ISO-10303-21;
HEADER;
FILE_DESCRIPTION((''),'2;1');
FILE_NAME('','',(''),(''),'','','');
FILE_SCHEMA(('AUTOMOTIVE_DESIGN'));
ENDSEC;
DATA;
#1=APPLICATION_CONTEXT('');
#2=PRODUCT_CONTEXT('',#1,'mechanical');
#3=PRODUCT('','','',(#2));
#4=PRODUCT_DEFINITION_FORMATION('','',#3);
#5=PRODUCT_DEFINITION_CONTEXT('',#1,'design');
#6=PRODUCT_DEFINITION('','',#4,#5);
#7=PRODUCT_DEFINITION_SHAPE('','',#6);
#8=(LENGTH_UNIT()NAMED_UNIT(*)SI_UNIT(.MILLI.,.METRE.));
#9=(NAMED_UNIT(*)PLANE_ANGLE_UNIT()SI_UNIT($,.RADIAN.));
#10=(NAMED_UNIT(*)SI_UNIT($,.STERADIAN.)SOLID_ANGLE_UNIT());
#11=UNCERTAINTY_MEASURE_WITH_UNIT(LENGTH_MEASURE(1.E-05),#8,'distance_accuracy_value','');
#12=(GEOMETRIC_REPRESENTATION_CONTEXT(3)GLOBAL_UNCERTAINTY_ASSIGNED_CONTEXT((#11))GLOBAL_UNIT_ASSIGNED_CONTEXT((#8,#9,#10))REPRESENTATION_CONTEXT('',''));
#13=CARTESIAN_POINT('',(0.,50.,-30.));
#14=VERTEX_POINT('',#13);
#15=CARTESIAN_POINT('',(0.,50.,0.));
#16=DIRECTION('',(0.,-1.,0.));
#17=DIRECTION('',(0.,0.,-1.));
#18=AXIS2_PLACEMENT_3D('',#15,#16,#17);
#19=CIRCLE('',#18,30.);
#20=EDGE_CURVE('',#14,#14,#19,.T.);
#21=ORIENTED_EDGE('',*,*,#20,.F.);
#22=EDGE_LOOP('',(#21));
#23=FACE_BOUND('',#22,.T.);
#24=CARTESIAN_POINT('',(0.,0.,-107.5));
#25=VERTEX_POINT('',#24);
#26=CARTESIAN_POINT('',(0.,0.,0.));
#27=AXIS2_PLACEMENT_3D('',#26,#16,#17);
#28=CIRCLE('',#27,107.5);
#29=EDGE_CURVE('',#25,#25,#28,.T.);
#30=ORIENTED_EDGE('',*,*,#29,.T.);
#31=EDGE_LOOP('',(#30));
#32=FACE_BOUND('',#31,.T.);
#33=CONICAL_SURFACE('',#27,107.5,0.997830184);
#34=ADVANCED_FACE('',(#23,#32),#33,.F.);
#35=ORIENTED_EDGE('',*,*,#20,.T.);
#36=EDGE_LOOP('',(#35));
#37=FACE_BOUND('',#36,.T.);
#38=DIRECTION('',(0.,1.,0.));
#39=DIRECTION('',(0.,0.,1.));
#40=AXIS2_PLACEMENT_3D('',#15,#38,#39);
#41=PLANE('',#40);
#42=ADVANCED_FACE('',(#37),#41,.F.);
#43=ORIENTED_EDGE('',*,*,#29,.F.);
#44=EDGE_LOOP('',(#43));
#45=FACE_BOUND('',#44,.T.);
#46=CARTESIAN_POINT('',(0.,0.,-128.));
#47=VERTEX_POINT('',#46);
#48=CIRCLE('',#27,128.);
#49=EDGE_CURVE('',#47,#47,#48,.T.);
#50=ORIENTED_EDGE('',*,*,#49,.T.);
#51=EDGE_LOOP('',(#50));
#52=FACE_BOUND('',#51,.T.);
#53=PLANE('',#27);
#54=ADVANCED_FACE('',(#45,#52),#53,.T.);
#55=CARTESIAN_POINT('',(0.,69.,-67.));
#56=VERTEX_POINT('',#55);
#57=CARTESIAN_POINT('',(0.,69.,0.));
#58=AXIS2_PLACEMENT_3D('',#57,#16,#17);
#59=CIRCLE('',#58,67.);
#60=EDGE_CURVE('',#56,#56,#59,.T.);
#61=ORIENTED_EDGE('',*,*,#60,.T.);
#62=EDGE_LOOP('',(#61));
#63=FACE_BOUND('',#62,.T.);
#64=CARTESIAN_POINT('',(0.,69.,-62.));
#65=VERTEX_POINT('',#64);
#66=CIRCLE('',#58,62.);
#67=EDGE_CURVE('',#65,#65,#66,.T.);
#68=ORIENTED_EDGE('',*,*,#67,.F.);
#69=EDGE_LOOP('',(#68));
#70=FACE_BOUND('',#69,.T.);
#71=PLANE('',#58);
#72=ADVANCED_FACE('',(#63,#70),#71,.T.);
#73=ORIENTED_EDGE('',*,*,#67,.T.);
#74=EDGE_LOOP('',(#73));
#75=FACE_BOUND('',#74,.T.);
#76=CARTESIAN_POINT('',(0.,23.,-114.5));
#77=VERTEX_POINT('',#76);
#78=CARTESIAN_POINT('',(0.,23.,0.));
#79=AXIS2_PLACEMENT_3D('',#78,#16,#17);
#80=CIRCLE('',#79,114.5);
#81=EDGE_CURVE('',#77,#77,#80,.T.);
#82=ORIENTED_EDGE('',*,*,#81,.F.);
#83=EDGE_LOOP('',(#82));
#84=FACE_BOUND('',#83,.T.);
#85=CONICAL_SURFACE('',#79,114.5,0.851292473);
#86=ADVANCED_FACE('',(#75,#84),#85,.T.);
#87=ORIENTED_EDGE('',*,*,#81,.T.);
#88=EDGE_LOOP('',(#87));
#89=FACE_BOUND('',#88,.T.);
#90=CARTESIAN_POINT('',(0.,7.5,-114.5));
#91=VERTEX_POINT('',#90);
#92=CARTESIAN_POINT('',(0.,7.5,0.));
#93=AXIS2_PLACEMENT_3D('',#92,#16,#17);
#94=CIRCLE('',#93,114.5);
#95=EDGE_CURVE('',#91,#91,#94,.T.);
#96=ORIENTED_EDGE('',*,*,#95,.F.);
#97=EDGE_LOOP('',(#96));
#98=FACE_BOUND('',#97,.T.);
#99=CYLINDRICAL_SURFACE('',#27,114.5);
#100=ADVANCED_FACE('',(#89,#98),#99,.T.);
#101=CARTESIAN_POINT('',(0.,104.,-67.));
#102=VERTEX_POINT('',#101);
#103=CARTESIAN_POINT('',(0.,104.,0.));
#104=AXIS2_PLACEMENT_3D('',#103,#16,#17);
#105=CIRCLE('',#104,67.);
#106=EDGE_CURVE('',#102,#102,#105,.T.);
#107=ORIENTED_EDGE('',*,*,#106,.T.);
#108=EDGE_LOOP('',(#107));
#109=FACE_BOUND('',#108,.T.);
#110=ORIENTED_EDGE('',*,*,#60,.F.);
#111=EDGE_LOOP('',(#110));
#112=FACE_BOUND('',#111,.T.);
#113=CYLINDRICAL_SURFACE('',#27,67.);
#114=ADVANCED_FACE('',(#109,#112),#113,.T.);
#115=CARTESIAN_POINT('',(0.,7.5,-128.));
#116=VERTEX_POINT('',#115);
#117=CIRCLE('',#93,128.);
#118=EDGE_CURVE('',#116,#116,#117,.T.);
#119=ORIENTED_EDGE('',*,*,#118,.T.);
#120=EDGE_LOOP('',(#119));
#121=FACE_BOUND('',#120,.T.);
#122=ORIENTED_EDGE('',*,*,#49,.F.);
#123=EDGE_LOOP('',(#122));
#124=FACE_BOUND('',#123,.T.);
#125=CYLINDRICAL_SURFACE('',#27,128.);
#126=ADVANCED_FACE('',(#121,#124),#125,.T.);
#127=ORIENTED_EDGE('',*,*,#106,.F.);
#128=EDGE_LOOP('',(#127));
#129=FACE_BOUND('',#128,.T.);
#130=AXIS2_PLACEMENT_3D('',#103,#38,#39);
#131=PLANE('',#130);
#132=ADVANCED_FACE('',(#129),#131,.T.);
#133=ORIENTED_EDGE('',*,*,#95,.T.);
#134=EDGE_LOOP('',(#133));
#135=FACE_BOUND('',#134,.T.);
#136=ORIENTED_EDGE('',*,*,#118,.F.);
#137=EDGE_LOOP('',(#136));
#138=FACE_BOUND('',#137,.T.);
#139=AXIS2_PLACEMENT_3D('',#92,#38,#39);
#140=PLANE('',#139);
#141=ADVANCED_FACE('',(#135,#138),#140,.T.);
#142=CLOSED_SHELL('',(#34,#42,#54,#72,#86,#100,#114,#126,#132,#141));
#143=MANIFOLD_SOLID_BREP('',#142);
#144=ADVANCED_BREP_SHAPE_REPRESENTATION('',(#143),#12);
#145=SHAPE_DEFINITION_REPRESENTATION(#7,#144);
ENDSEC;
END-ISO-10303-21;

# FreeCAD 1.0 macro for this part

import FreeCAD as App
import Part
import Sketcher


def add_polygon(sketch, points):
    """Adds a closed chain of lines whose ends are joined by coincident constraints."""
    first, n = sketch.GeometryCount, len(points)
    for a, b in zip(points, points[1:] + points[:1]):
        sketch.addGeometry(Part.LineSegment(App.Vector(*a, 0), App.Vector(*b, 0)), False)
    for i in range(n):
        sketch.addConstraint(Sketcher.Constraint("Coincident", first + i, 2, first + (i + 1) % n, 1))

doc = App.newDocument("Part")
body = doc.addObject("PartDesign::Body", "Body")

# Sketch on YZ plane
sketch1 = doc.addObject("Sketcher::SketchObject", "Sketch")
body.addObject(sketch1)
sketch1.AttachmentSupport = (doc.YZ_Plane, [""])
sketch1.MapMode = "FlatFace"
add_polygon(sketch1, [(50, 0), (104, 0), (104, 67), (69, 67), (69, 62), (23, 114), (8, 114), (8, 128), (0, 128), (0, 108), (50, 30)])  # lines 0-10
sketch1.addConstraint(Sketcher.Constraint("Horizontal", 0))
sketch1.addConstraint(Sketcher.Constraint("Vertical", 1))
sketch1.addConstraint(Sketcher.Constraint("Horizontal", 2))
sketch1.addConstraint(Sketcher.Constraint("Vertical", 3))
sketch1.addConstraint(Sketcher.Constraint("Horizontal", 5))
sketch1.addConstraint(Sketcher.Constraint("Vertical", 6))
sketch1.addConstraint(Sketcher.Constraint("Horizontal", 7))
sketch1.addConstraint(Sketcher.Constraint("Vertical", 8))
sketch1.addConstraint(Sketcher.Constraint("Vertical", 10))
sketch1.addConstraint(Sketcher.Constraint("PointOnObject", 0, 2, -1))
sketch1.addConstraint(Sketcher.Constraint("PointOnObject", 7, 2, -2))
sketch1.addConstraint(Sketcher.Constraint("DistanceX", 0, 1, 0, 2, 54.0))
sketch1.addConstraint(Sketcher.Constraint("DistanceX", 2, 2, 2, 1, 35.0))
sketch1.addConstraint(Sketcher.Constraint("DistanceY", 1, 1, 1, 2, 67.0))
sketch1.addConstraint(Sketcher.Constraint("DistanceY", 3, 2, 3, 1, 5.0))
sketch1.addConstraint(Sketcher.Constraint("DistanceY", 10, 2, 10, 1, 30.0))
sketch1.addConstraint(Sketcher.Constraint("DistanceX", 5, 2, 5, 1, 15.5))
sketch1.addConstraint(Sketcher.Constraint("DistanceX", 7, 2, 7, 1, 7.5))
sketch1.addConstraint(Sketcher.Constraint("DistanceY", 6, 1, 6, 2, 13.5))
sketch1.addConstraint(Sketcher.Constraint("DistanceY", 8, 2, 8, 1, 20.5))
sketch1.addConstraint(Sketcher.Constraint("DistanceX", -1, 1, 0, 2, 104.0))
sketch1.addConstraint(Sketcher.Constraint("DistanceY", -1, 1, 6, 2, 128.0))
revolution = doc.addObject("PartDesign::Revolution", "Revolution")
body.addObject(revolution)
revolution.Profile = sketch1
revolution.ReferenceAxis = (sketch1, ["H_Axis"])
revolution.Angle = 360

doc.recompute()
